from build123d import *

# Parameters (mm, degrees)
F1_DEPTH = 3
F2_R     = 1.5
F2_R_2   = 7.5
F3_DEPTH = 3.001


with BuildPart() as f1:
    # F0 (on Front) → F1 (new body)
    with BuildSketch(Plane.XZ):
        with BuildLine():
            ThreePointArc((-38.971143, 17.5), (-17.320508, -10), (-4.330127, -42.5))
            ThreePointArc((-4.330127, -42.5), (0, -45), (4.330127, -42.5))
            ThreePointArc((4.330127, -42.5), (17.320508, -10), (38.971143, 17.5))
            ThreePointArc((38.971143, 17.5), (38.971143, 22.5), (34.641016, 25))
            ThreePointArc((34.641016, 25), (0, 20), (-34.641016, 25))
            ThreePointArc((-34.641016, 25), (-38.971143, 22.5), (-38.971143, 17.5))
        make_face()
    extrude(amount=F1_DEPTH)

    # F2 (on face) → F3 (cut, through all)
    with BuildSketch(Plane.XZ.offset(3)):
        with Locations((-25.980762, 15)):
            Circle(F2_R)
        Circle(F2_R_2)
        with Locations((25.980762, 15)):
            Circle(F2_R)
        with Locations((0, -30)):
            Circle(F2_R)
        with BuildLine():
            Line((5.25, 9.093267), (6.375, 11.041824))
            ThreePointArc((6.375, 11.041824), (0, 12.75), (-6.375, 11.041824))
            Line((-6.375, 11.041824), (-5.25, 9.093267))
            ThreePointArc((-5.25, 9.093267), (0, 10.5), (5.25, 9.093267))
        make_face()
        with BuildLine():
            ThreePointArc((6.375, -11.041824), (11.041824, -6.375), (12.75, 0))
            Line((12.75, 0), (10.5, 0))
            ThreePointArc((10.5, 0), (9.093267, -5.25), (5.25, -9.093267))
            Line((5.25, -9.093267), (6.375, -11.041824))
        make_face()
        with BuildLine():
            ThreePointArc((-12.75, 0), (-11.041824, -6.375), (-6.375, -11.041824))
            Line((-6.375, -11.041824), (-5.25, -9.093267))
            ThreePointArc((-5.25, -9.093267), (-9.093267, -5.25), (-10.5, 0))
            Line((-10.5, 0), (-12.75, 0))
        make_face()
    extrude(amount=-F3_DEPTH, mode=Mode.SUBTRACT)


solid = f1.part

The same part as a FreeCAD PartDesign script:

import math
import FreeCAD as App
import Part
import Sketcher
from FreeCAD import Vector
Q = App.Units.Quantity

doc = App.newDocument("Part")
params = doc.addObject("Spreadsheet::Sheet", "Params")
for row, (alias, value) in enumerate([
    ("sketch1_radius", "5 mm"),
    ("sketch1_radius2", "122.5 mm"),
    ("pad1_length", "3 mm"),
    ("sketch2_diameter", "3 mm"),
    ("sketch2_diameter2", "15 mm"),
    ("sketch2_radius", "10.500002 mm"),
    ("sketch2_radius2", "12.750001 mm"),
], start=1):
    params.set(f"A{row}", alias)
    params.set(f"B{row}", "=" + value)
    params.setAlias(f"B{row}", alias)

body = doc.addObject("PartDesign::Body", "Body")

sketch1 = body.newObject("Sketcher::SketchObject", "Sketch")
sketch1.AttachmentSupport = (doc.getObject("XZ_Plane"), [""])
sketch1.MapMode = "FlatFace"
sketch1.addGeometry([
    Part.ArcOfCircle(Part.Circle(Vector(-123.4, -71.2, 0), Vector(0, 0, 1), 122.5), math.radians(14), math.radians(46)),
    Part.ArcOfCircle(Part.Circle(Vector(0, -40, 0), Vector(0, 0, 1), 5), math.radians(-150), math.radians(-30)),
    Part.ArcOfCircle(Part.Circle(Vector(123.4, -71.2, 0), Vector(0, 0, 1), 122.5), math.radians(134), math.radians(166)),
    Part.ArcOfCircle(Part.Circle(Vector(34.6, 20, 0), Vector(0, 0, 1), 5), math.radians(-30), math.radians(90)),
    Part.ArcOfCircle(Part.Circle(Vector(0, 142.5, 0), Vector(0, 0, 1), 122.5), math.radians(-106), math.radians(-74)),
    Part.ArcOfCircle(Part.Circle(Vector(-34.6, 20, 0), Vector(0, 0, 1), 5), math.radians(90), math.radians(210)),
], False)
sketch1.addConstraint([
    Sketcher.Constraint("Coincident", 0, 1, 1, 1),
    Sketcher.Constraint("Coincident", 1, 2, 2, 2),
    Sketcher.Constraint("Coincident", 2, 1, 3, 1),
    Sketcher.Constraint("Coincident", 3, 2, 4, 2),
    Sketcher.Constraint("Coincident", 4, 1, 5, 1),
    Sketcher.Constraint("Coincident", 5, 2, 0, 2),
    Sketcher.Constraint("Equal", 0, 2),
    Sketcher.Constraint("Equal", 1, 3),
    Sketcher.Constraint("Equal", 2, 4),
    Sketcher.Constraint("Equal", 3, 5),
    Sketcher.Constraint("Symmetric", 0, 3, 2, 3, -2),
    Sketcher.Constraint("Symmetric", 3, 3, 5, 3, -2),
    Sketcher.Constraint("PointOnObject", 1, 3, -2),
    Sketcher.Constraint("PointOnObject", 4, 3, -2),
    Sketcher.Constraint("Vertical", 5, 3, 4, 1),
    Sketcher.Constraint("Radius", 1, 5.0),
    Sketcher.Constraint("Radius", 0, 122.5),
    Sketcher.Constraint("DistanceY", 1, 3, -1, 1, 40.0),
    Sketcher.Constraint("DistanceY", -1, 1, 3, 3, 20.0),
    Sketcher.Constraint("DistanceY", 1, 2, 2, 1, 60.0),
    Sketcher.Constraint("DistanceY", -1, 1, 4, 3, 142.499999),
    Sketcher.Constraint("DistanceY", 0, 1, -1, 1, 42.5),
])
sketch1.setExpression("Constraints[15]", "Params.sketch1_radius")
sketch1.setExpression("Constraints[16]", "Params.sketch1_radius2")
pad1 = body.newObject("PartDesign::Pad", "Pad")
pad1.Profile = sketch1
pad1.setExpression("Length", "Params.pad1_length")

sketch2 = body.newObject("Sketcher::SketchObject", "Sketch001")
sketch2.AttachmentSupport = (doc.getObject("XZ_Plane"), [""])
sketch2.MapMode = "FlatFace"
sketch2.AttachmentOffset = App.Placement(Vector(0, 0, 3), App.Rotation())
sketch2.addGeometry([
    Part.Circle(Vector(-26, 15, 0), Vector(0, 0, 1), 1.5),
    Part.Circle(Vector(0, 0, 0), Vector(0, 0, 1), 7.5),
    Part.Circle(Vector(26, 15, 0), Vector(0, 0, 1), 1.5),
    Part.Circle(Vector(0, -30, 0), Vector(0, 0, 1), 1.5),
    Part.LineSegment(Vector(5.2, 9.1, 0), Vector(6.4, 11, 0)),
    Part.ArcOfCircle(Part.Circle(Vector(0, 0, 0), Vector(0, 0, 1), 12.8), math.radians(60), math.radians(120)),
    Part.LineSegment(Vector(-6.4, 11, 0), Vector(-5.2, 9.1, 0)),
    Part.ArcOfCircle(Part.Circle(Vector(0, 0, 0), Vector(0, 0, 1), 10.5), math.radians(60), math.radians(120)),
    Part.ArcOfCircle(Part.Circle(Vector(0, 0, 0), Vector(0, 0, 1), 12.7), math.radians(-60), math.radians(0)),
    Part.LineSegment(Vector(12.8, 0, 0), Vector(10.5, 0, 0)),
    Part.ArcOfCircle(Part.Circle(Vector(0, 0, 0), Vector(0, 0, 1), 10.5), math.radians(-60), math.radians(0)),
    Part.LineSegment(Vector(5.2, -9.1, 0), Vector(6.4, -11, 0)),
    Part.ArcOfCircle(Part.Circle(Vector(0, 0, 0), Vector(0, 0, 1), 12.7), math.radians(180), math.radians(240)),
    Part.LineSegment(Vector(-6.4, -11, 0), Vector(-5.2, -9.1, 0)),
    Part.ArcOfCircle(Part.Circle(Vector(0, 0, 0), Vector(0, 0, 1), 10.5), math.radians(180), math.radians(240)),
    Part.LineSegment(Vector(-10.5, 0, 0), Vector(-12.8, 0, 0)),
], False)
sketch2.addConstraint([
    Sketcher.Constraint("Coincident", 4, 2, 5, 1),
    Sketcher.Constraint("Coincident", 5, 2, 6, 1),
    Sketcher.Constraint("Coincident", 6, 2, 7, 2),
    Sketcher.Constraint("Coincident", 7, 1, 4, 1),
    Sketcher.Constraint("Coincident", 8, 2, 9, 1),
    Sketcher.Constraint("Coincident", 9, 2, 10, 2),
    Sketcher.Constraint("Coincident", 10, 1, 11, 1),
    Sketcher.Constraint("Coincident", 11, 2, 8, 1),
    Sketcher.Constraint("Coincident", 12, 2, 13, 1),
    Sketcher.Constraint("Coincident", 13, 2, 14, 2),
    Sketcher.Constraint("Coincident", 14, 1, 15, 1),
    Sketcher.Constraint("Coincident", 15, 2, 12, 1),
    Sketcher.Constraint("Horizontal", 9),
    Sketcher.Constraint("Horizontal", 15),
    Sketcher.Constraint("Coincident", 1, 3, -1, 1),
    Sketcher.Constraint("Coincident", 5, 3, -1, 1),
    Sketcher.Constraint("Coincident", 7, 3, -1, 1),
    Sketcher.Constraint("Coincident", 8, 3, -1, 1),
    Sketcher.Constraint("Coincident", 10, 3, -1, 1),
    Sketcher.Constraint("Coincident", 12, 3, -1, 1),
    Sketcher.Constraint("Coincident", 14, 3, -1, 1),
    Sketcher.Constraint("Equal", 0, 2),
    Sketcher.Constraint("Equal", 2, 3),
    Sketcher.Constraint("Equal", 5, 8),
    Sketcher.Constraint("Equal", 8, 12),
    Sketcher.Constraint("Equal", 10, 14),
    Sketcher.Constraint("Symmetric", 6, 2, 10, 1, -1, 1),
    Sketcher.Constraint("Symmetric", 0, 3, 2, 3, -2),
    Sketcher.Constraint("PointOnObject", 3, 3, -2),
    Sketcher.Constraint("PointOnObject", 8, 2, -1),
    Sketcher.Constraint("PointOnObject", 14, 1, -1),
    Sketcher.Constraint("Parallel", 6, 11),
    Sketcher.Constraint("Parallel", 4, 13),
    Sketcher.Constraint("Horizontal", 4, 2, 5, 2),
    Sketcher.Constraint("Horizontal", 6, 2, 7, 1),
    Sketcher.Constraint("Horizontal", 11, 2, 12, 2),
    Sketcher.Constraint("Diameter", 0, 3.0),
    Sketcher.Constraint("Diameter", 1, 15.0),
    Sketcher.Constraint("Radius", 7, 10.500002),
    Sketcher.Constraint("Angle", 4, Q("59.999998 deg")),
    Sketcher.Constraint("Radius", 5, 12.750001),
    Sketcher.Constraint("DistanceY", -1, 1, 0, 3, 15.0),
    Sketcher.Constraint("DistanceY", 3, 3, -1, 1, 30.0),
    Sketcher.Constraint("DistanceX", 6, 2, 7, 1, 10.5),
    Sketcher.Constraint("DistanceX", 0, 3, -1, 1, 25.980762),
])
sketch2.setExpression("Constraints[36]", "Params.sketch2_diameter")
sketch2.setExpression("Constraints[37]", "Params.sketch2_diameter2")
sketch2.setExpression("Constraints[38]", "Params.sketch2_radius")
sketch2.setExpression("Constraints[40]", "Params.sketch2_radius2")
pocket1 = body.newObject("PartDesign::Pocket", "Pocket")
pocket1.Profile = sketch2
pocket1.Type = "ThroughAll"

doc.recompute()
